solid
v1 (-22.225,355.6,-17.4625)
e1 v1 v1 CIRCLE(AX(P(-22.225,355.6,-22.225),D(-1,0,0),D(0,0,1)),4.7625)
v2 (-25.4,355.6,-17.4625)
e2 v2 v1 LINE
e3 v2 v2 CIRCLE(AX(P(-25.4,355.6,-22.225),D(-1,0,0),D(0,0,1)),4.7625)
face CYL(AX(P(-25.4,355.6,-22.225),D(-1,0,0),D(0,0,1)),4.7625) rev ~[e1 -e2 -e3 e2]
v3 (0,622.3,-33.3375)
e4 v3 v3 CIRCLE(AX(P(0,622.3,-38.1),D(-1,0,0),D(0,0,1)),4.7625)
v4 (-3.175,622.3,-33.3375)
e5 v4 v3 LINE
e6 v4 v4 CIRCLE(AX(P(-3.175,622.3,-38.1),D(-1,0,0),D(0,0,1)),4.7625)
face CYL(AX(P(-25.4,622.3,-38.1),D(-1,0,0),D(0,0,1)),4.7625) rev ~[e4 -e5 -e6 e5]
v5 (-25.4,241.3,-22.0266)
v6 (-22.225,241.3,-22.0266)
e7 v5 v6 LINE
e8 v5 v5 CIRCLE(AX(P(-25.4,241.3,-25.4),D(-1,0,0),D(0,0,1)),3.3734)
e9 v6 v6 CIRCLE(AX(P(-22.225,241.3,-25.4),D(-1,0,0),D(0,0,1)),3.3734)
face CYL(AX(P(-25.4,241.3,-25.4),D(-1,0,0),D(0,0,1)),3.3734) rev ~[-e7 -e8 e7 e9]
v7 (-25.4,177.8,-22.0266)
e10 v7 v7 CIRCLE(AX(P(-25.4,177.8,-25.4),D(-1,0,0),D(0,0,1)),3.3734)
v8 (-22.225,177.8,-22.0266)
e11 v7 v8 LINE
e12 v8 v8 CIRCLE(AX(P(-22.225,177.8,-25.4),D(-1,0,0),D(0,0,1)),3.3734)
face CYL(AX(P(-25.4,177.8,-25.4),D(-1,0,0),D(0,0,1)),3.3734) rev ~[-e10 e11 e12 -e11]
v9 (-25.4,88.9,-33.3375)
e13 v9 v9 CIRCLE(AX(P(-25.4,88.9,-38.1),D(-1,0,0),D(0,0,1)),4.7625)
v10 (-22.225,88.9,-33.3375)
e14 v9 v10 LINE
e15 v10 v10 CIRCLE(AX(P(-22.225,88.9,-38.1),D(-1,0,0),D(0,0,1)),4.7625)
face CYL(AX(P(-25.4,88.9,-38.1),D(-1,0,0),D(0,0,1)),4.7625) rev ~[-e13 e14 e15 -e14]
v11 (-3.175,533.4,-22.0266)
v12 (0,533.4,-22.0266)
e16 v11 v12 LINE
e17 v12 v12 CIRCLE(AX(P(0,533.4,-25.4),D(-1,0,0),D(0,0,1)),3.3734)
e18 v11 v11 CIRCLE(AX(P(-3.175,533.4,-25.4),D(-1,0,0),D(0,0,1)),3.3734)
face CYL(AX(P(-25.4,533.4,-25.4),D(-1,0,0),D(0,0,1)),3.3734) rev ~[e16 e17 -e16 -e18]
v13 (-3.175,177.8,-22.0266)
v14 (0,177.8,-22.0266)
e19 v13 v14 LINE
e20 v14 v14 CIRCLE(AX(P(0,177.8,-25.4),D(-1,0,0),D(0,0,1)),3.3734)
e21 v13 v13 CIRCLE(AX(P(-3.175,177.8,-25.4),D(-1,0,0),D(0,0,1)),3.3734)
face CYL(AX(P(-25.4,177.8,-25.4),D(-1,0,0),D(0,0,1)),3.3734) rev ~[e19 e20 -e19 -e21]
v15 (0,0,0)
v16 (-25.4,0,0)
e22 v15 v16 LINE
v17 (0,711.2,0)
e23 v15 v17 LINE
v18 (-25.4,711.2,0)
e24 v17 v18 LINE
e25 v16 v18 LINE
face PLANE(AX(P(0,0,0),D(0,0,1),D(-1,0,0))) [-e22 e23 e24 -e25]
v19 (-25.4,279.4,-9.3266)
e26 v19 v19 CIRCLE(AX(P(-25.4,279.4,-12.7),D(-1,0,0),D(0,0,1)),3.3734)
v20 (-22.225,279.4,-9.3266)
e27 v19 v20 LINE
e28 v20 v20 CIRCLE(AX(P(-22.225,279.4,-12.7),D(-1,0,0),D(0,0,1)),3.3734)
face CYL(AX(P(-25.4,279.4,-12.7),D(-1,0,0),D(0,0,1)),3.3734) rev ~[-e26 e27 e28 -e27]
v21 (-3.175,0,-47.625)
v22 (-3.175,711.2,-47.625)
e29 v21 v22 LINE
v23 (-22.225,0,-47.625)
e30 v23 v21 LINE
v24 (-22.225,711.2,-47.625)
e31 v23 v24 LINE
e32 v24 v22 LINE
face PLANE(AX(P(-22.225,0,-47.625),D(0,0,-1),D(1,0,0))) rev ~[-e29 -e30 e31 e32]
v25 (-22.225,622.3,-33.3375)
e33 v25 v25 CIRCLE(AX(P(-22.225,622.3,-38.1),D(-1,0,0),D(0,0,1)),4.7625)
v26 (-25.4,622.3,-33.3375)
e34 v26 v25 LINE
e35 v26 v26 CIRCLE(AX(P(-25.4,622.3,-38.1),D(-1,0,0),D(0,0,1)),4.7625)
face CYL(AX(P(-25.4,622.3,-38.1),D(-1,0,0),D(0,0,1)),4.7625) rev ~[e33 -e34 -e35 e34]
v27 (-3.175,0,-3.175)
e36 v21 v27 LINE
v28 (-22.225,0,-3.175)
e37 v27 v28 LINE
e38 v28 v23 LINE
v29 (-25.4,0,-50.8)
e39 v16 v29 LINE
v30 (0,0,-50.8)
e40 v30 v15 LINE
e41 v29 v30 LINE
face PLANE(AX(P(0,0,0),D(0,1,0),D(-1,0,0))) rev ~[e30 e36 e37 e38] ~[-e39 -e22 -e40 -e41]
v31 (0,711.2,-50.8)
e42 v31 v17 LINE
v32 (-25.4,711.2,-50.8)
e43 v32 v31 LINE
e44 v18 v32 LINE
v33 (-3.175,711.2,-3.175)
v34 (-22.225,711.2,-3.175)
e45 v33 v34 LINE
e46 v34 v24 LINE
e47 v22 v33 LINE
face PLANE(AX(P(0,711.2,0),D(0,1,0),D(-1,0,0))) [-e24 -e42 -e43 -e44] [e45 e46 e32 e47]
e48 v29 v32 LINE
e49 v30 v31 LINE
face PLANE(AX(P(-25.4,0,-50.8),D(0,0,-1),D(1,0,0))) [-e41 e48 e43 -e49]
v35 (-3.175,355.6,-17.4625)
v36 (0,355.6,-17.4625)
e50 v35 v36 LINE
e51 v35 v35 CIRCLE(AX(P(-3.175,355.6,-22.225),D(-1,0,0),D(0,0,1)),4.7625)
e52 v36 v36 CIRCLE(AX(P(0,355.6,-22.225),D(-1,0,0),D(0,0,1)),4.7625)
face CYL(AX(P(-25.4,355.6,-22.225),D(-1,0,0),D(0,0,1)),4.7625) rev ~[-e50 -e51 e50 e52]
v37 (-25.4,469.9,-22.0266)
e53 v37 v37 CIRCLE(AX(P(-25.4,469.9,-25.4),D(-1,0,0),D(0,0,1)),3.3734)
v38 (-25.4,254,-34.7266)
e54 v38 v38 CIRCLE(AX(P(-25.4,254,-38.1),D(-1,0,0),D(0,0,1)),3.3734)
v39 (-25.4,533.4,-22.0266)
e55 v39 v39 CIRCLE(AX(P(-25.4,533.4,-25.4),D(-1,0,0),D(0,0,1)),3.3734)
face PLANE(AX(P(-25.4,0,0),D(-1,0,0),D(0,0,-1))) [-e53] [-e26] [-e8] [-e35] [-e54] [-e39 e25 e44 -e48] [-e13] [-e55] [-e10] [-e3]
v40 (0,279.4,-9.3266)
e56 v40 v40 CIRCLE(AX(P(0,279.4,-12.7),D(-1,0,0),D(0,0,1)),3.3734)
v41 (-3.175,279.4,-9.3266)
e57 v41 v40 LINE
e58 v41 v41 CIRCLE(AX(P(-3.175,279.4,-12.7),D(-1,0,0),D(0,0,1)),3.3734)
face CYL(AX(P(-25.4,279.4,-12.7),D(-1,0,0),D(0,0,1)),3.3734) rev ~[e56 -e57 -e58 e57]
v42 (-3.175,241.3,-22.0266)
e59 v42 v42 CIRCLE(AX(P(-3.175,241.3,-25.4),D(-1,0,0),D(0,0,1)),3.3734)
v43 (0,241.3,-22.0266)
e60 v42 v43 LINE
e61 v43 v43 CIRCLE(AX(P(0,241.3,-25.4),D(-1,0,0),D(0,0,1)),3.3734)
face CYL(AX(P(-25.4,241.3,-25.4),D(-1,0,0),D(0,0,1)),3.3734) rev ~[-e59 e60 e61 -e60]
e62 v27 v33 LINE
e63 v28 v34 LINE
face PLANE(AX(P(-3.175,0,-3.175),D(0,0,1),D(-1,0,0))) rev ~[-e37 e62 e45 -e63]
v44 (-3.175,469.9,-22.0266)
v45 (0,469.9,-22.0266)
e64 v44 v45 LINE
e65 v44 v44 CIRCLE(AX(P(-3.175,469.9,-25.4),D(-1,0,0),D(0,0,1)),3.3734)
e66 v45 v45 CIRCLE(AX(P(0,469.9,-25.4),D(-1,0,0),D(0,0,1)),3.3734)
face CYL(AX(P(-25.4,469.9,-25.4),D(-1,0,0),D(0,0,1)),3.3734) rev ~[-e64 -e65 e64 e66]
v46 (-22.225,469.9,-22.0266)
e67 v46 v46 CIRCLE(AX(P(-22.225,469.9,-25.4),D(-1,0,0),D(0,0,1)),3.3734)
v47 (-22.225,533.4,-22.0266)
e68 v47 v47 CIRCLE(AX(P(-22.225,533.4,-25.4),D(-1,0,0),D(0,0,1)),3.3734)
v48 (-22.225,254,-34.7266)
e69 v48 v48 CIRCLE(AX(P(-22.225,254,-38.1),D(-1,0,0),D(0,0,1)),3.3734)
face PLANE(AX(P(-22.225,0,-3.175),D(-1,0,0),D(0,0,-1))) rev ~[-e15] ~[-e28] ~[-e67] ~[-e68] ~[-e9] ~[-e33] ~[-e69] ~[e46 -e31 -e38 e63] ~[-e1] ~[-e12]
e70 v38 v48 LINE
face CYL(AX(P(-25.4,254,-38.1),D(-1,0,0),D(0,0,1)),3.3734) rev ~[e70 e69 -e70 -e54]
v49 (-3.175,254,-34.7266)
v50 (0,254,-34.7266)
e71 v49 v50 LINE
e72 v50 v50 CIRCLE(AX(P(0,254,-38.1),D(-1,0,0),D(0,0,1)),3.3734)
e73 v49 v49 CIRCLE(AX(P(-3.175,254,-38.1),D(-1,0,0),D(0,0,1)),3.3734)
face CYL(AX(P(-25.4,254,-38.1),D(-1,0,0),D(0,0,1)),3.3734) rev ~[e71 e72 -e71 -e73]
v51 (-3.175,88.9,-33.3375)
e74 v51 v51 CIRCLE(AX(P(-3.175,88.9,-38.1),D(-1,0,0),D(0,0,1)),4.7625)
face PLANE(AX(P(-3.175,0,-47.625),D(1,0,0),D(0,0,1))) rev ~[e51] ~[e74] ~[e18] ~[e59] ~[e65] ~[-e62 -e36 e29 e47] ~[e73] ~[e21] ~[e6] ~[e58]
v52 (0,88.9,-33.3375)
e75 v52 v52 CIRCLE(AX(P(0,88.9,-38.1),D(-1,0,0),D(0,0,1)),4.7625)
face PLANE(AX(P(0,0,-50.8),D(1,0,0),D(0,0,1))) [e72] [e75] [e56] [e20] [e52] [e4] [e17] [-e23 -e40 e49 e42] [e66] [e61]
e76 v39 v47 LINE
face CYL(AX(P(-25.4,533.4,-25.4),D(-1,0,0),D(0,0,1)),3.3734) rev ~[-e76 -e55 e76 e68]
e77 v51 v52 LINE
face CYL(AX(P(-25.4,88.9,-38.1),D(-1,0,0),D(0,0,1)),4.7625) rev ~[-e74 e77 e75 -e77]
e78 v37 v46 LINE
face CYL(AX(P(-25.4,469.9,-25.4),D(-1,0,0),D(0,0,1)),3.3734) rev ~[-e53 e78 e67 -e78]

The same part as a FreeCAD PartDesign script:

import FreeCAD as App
import Part
import Sketcher
Q = App.Units.Quantity


def add_polygon(sketch, points):
    """Adds a closed chain of lines whose ends are joined by coincident constraints."""
    first, n = sketch.GeometryCount, len(points)
    for a, b in zip(points, points[1:] + points[:1]):
        sketch.addGeometry(Part.LineSegment(App.Vector(*a, 0), App.Vector(*b, 0)), False)
    for i in range(n):
        sketch.addConstraint(Sketcher.Constraint("Coincident", first + i, 2, first + (i + 1) % n, 1))

doc = App.newDocument("Part")
body = doc.addObject("PartDesign::Body", "Body")

# Sketch on XZ plane
sketch1 = body.newObject("Sketcher::SketchObject", "Sketch")
sketch1.AttachmentSupport = (doc.getObject("XZ_Plane"), [""])
sketch1.MapMode = "FlatFace"
add_polygon(sketch1, [(-25, 0), (0, 0), (0, -51), (-25, -51)])  # lines 0-3
add_polygon(sketch1, [(-3, -48), (-3, -3), (-22, -3), (-22, -48)])  # lines 4-7
sketch1.addConstraint(Sketcher.Constraint("Horizontal", 0))
sketch1.addConstraint(Sketcher.Constraint("Vertical", 1))
sketch1.addConstraint(Sketcher.Constraint("Horizontal", 2))
sketch1.addConstraint(Sketcher.Constraint("Vertical", 3))
sketch1.addConstraint(Sketcher.Constraint("Vertical", 4))
sketch1.addConstraint(Sketcher.Constraint("Horizontal", 5))
sketch1.addConstraint(Sketcher.Constraint("Vertical", 6))
sketch1.addConstraint(Sketcher.Constraint("Horizontal", 7))
sketch1.addConstraint(Sketcher.Constraint("Coincident", 0, 2, -1, 1))
sketch1.addConstraint(Sketcher.Constraint("DistanceX", 0, 1, 0, 2, Q("1 in")))
sketch1.addConstraint(Sketcher.Constraint("DistanceY", 1, 2, 1, 1, Q("2 in")))
sketch1.addConstraint(Sketcher.Constraint("DistanceX", 4, 2, -1, 1, Q("0.125 in")))
sketch1.addConstraint(Sketcher.Constraint("DistanceY", 4, 2, -1, 1, Q("0.125 in")))
sketch1.addConstraint(Sketcher.Constraint("DistanceX", 3, 2, 5, 2, Q("0.125 in")))
sketch1.addConstraint(Sketcher.Constraint("DistanceY", 2, 2, 6, 2, Q("0.125 in")))
pad1 = body.newObject("PartDesign::Pad", "Pad")
pad1.Profile = sketch1
pad1.Length = Q("28 in")
pad1.Reversed = True

# Sketch on YZ plane
sketch2 = body.newObject("Sketcher::SketchObject", "Sketch001")
sketch2.AttachmentSupport = (doc.getObject("YZ_Plane"), [""])
sketch2.MapMode = "FlatFace"
sketch2.AttachmentOffset = App.Placement(App.Vector(0, 0, -1 * 25.4), App.Rotation())
sketch2.addGeometry(Part.Circle(App.Vector(355.6, -22.2, 0), App.Vector(0, 0, 1), 4.8), False)
sketch2.addGeometry(Part.Circle(App.Vector(622.3, -38.1, 0), App.Vector(0, 0, 1), 4.8), False)
sketch2.addGeometry(Part.Circle(App.Vector(88.9, -38.1, 0), App.Vector(0, 0, 1), 4.8), False)
sketch2.addGeometry(Part.Circle(App.Vector(177.8, -25.4, 0), App.Vector(0, 0, 1), 3.4), False)
sketch2.addGeometry(Part.Circle(App.Vector(241.3, -25.4, 0), App.Vector(0, 0, 1), 3.4), False)
sketch2.addGeometry(Part.Circle(App.Vector(533.4, -25.4, 0), App.Vector(0, 0, 1), 3.4), False)
sketch2.addGeometry(Part.Circle(App.Vector(469.9, -25.4, 0), App.Vector(0, 0, 1), 3.4), False)
sketch2.addConstraint(Sketcher.Constraint("Equal", 0, 1))
sketch2.addConstraint(Sketcher.Constraint("Equal", 1, 2))
sketch2.addConstraint(Sketcher.Constraint("Equal", 3, 4))
sketch2.addConstraint(Sketcher.Constraint("Equal", 4, 5))
sketch2.addConstraint(Sketcher.Constraint("Equal", 5, 6))
sketch2.addConstraint(Sketcher.Constraint("Horizontal", 1, 3, 2, 3))
sketch2.addConstraint(Sketcher.Constraint("Horizontal", 3, 3, 4, 3))
sketch2.addConstraint(Sketcher.Constraint("Horizontal", 4, 3, 5, 3))
sketch2.addConstraint(Sketcher.Constraint("Horizontal", 5, 3, 6, 3))
sketch2.addConstraint(Sketcher.Constraint("Diameter", 0, Q("0.375 in")))
sketch2.addConstraint(Sketcher.Constraint("Diameter", 3, Q("0.265622 in")))
sketch2.addConstraint(Sketcher.Constraint("DistanceX", -1, 1, 0, 3, Q("14 in")))
sketch2.addConstraint(Sketcher.Constraint("DistanceX", -1, 1, 3, 3, Q("7 in")))
sketch2.addConstraint(Sketcher.Constraint("DistanceY", 3, 3, -1, 1, Q("1 in")))
sketch2.addConstraint(Sketcher.Constraint("DistanceX", 0, 3, 5, 3, Q("7 in")))
sketch2.addConstraint(Sketcher.Constraint("DistanceY", 1, 3, -1, 1, Q("1.5 in")))
sketch2.addConstraint(Sketcher.Constraint("DistanceX", -1, 1, 4, 3, Q("9.5 in")))
sketch2.addConstraint(Sketcher.Constraint("DistanceX", 0, 3, 1, 3, Q("10.5 in")))
sketch2.addConstraint(Sketcher.Constraint("DistanceX", 2, 3, 0, 3, Q("10.5 in")))
sketch2.addConstraint(Sketcher.Constraint("DistanceX", 6, 3, 5, 3, Q("2.5 in")))
sketch2.addConstraint(Sketcher.Constraint("DistanceY", 0, 3, -1, 1, Q("0.875 in")))
pocket1 = body.newObject("PartDesign::Pocket", "Pocket")
pocket1.Profile = sketch2
pocket1.Length = Q("1 in")
pocket1.Reversed = True

# Sketch on YZ plane
sketch3 = body.newObject("Sketcher::SketchObject", "Sketch002")
sketch3.AttachmentSupport = (doc.getObject("YZ_Plane"), [""])
sketch3.MapMode = "FlatFace"
sketch3.AttachmentOffset = App.Placement(App.Vector(0, 0, -1 * 25.4), App.Rotation())
sketch3.addGeometry(Part.Circle(App.Vector(254, -38.1, 0), App.Vector(0, 0, 1), 3.4), False)
sketch3.addGeometry(Part.Circle(App.Vector(279.4, -12.7, 0), App.Vector(0, 0, 1), 3.4), False)
sketch3.addConstraint(Sketcher.Constraint("Equal", 0, 1))
sketch3.addConstraint(Sketcher.Constraint("Diameter", 0, Q("0.265622 in")))
sketch3.addConstraint(Sketcher.Constraint("DistanceX", 0, 3, 1, 3, Q("1 in")))
sketch3.addConstraint(Sketcher.Constraint("DistanceY", 0, 3, 1, 3, Q("1 in")))
sketch3.addConstraint(Sketcher.Constraint("DistanceY", 0, 3, -1, 1, Q("1.5 in")))
sketch3.addConstraint(Sketcher.Constraint("DistanceX", -1, 1, 0, 3, Q("10 in")))
pocket2 = body.newObject("PartDesign::Pocket", "Pocket001")
pocket2.Profile = sketch3
pocket2.Length = Q("1 in")
pocket2.Reversed = True

doc.recompute()
